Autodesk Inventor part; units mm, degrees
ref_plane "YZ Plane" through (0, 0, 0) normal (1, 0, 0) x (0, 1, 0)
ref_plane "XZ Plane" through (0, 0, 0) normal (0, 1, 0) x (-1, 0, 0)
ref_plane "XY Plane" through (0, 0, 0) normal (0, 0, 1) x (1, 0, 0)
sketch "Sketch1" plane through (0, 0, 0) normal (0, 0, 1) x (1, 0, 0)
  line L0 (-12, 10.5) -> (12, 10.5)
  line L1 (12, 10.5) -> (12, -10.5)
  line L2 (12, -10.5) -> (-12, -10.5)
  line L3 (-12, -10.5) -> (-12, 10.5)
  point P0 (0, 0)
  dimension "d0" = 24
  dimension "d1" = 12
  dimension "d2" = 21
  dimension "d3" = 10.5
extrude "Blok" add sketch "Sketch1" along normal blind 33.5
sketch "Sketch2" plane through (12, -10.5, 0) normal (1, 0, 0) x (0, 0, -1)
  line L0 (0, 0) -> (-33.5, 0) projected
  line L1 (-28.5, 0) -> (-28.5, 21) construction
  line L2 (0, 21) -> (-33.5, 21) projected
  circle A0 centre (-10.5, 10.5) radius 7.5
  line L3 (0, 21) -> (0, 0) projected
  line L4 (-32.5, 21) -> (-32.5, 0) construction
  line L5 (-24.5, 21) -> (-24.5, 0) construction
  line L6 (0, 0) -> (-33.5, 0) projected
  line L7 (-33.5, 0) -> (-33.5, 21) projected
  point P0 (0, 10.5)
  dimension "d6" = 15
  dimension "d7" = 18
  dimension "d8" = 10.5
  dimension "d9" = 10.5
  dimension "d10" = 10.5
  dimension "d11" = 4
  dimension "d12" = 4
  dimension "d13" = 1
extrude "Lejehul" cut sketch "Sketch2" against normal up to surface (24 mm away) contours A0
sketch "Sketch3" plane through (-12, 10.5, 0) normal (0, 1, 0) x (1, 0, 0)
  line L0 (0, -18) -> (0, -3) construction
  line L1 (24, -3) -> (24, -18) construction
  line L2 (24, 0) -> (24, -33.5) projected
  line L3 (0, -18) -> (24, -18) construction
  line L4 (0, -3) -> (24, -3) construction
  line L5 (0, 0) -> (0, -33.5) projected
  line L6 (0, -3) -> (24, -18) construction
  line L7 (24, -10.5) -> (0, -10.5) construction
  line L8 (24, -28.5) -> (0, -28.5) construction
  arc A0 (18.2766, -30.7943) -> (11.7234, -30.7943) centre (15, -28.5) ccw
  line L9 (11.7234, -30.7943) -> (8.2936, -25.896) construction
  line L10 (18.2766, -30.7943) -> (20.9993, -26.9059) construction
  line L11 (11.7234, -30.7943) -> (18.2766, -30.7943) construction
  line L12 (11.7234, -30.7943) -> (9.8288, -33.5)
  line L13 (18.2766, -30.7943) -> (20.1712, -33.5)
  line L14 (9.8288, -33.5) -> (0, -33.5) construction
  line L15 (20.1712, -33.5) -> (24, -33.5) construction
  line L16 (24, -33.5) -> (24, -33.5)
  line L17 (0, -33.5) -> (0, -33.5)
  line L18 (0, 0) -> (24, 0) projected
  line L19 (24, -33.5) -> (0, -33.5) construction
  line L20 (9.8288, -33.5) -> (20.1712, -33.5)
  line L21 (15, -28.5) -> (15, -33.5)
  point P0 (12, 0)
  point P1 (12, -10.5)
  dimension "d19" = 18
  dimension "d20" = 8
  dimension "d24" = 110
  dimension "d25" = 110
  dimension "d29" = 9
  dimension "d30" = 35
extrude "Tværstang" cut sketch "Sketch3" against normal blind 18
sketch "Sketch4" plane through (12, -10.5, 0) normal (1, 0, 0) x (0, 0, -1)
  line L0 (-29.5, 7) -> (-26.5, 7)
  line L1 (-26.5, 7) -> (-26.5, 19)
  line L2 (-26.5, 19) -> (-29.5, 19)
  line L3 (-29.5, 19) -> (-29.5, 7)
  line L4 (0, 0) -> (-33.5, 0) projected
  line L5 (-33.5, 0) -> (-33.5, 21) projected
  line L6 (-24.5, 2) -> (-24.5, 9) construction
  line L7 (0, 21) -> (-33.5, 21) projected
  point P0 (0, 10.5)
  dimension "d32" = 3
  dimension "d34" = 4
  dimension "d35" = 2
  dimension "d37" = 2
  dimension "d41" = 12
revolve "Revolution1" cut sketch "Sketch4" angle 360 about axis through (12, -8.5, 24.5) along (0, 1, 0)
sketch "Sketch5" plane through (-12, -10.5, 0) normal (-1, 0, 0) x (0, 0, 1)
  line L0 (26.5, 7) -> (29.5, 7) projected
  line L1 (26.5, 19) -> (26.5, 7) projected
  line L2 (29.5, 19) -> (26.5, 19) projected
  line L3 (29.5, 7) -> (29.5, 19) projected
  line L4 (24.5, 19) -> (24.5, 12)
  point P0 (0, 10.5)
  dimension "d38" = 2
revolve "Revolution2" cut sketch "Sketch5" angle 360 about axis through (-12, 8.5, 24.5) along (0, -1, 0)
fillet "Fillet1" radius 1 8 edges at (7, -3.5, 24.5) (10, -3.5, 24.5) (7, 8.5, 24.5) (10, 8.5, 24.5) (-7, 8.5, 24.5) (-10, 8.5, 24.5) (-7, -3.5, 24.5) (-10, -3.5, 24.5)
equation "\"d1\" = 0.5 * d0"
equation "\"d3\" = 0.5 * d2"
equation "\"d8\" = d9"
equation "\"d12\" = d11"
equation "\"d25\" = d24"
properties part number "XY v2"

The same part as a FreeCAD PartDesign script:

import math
import FreeCAD as App
import Part
import Sketcher
Q = App.Units.Quantity


def edges_at(feature, points):
    """Names of the edges that pass closest to the given points."""
    edges = feature.Shape.Edges
    near = lambda p: min(range(len(edges)), key=lambda i: edges[i].distToShape(Part.Vertex(*p))[0])
    return sorted({f"Edge{near(p) + 1}" for p in points})


def add_polygon(sketch, points):
    """Adds a closed chain of lines whose ends are joined by coincident constraints."""
    first, n = sketch.GeometryCount, len(points)
    for a, b in zip(points, points[1:] + points[:1]):
        sketch.addGeometry(Part.LineSegment(App.Vector(*a, 0), App.Vector(*b, 0)), False)
    for i in range(n):
        sketch.addConstraint(Sketcher.Constraint("Coincident", first + i, 2, first + (i + 1) % n, 1))

doc = App.newDocument("Part")
params = doc.addObject("Spreadsheet::Sheet", "Params")
for row, (alias, value) in enumerate([
    ("sketch1_width", "24 mm"),
    ("sketch1_height", "21 mm"),
    ("pad1_length", "33.5 mm"),
    ("sketch2_diameter", "15 mm"),
    ("pocket1_length", "24 mm"),
    ("sketch3_radius", "4 mm"),
    ("pocket2_length", "18 mm"),
    ("sketch4_width", "12 mm"),
    ("sketch4_height", "3 mm"),
    ("groove_angle", "360 deg"),
    ("sketch5_width", "12 mm"),
    ("sketch5_height", "3 mm"),
    ("groove2_angle", "360 deg"),
    ("fillet_radius", "1 mm"),
], start=1):
    params.set(f"A{row}", alias)
    params.set(f"B{row}", "=" + value)
    params.setAlias(f"B{row}", alias)

body = doc.addObject("PartDesign::Body", "Body")

# Sketch on XY plane
sketch1 = body.newObject("Sketcher::SketchObject", "Sketch")
sketch1.AttachmentSupport = (doc.getObject("XY_Plane"), [""])
sketch1.MapMode = "FlatFace"
add_polygon(sketch1, [(12, 10), (-12, 10), (-12, -10), (12, -10)])  # lines 0-3
sketch1.addConstraint([
    Sketcher.Constraint("Horizontal", 0),
    Sketcher.Constraint("Vertical", 1),
    Sketcher.Constraint("Horizontal", 2),
    Sketcher.Constraint("Vertical", 3),
    Sketcher.Constraint("Symmetric", 0, 2, 2, 2, -1, 1),
    Sketcher.Constraint("DistanceX", 0, 2, 0, 1, 24.0),
    Sketcher.Constraint("DistanceY", 1, 2, 1, 1, 21.0),
])
sketch1.setExpression("Constraints[9]", "Params.sketch1_width")
sketch1.setExpression("Constraints[10]", "Params.sketch1_height")
pad1 = body.newObject("PartDesign::Pad", "Pad")
pad1.Profile = sketch1
pad1.setExpression("Length", "Params.pad1_length")

# Sketch on YZ plane
sketch2 = body.newObject("Sketcher::SketchObject", "Sketch001")
sketch2.AttachmentSupport = (doc.getObject("YZ_Plane"), [""])
sketch2.MapMode = "FlatFace"
sketch2.AttachmentOffset = App.Placement(App.Vector(0, 0, 12), App.Rotation())
sketch2.addGeometry(Part.Circle(App.Vector(0, 10, 0), App.Vector(0, 0, 1), 8), False)
sketch2.addConstraint([
    Sketcher.Constraint("PointOnObject", 0, 3, -2),
    Sketcher.Constraint("Diameter", 0, 15.0),
    Sketcher.Constraint("DistanceY", -1, 1, 0, 3, 10.5),
])
sketch2.setExpression("Constraints[1]", "Params.sketch2_diameter")
pocket1 = body.newObject("PartDesign::Pocket", "Pocket")
pocket1.Profile = sketch2
pocket1.setExpression("Length", "Params.pocket1_length")

# Sketch on XZ plane
sketch3 = body.newObject("Sketcher::SketchObject", "Sketch002")
sketch3.AttachmentSupport = (doc.getObject("XZ_Plane"), [""])
sketch3.MapMode = "FlatFace"
sketch3.AttachmentOffset = App.Placement(App.Vector(0, 0, -10.5), App.Rotation())
sketch3.addGeometry([
    Part.LineSegment(App.Vector(8.2, 33.5, 0), App.Vector(6.3, 30.8, 0)),
    Part.ArcOfCircle(Part.Circle(App.Vector(3, 28.5, 0), App.Vector(0, 0, 1), 4), math.radians(145), math.radians(395)),
    Part.LineSegment(App.Vector(-0.3, 30.8, 0), App.Vector(-2.2, 33.5, 0)),
    Part.LineSegment(App.Vector(-2.2, 33.5, 0), App.Vector(8.2, 33.5, 0)),
], False)
sketch3.addConstraint([
    Sketcher.Constraint("Coincident", 0, 2, 1, 2),
    Sketcher.Constraint("Coincident", 1, 1, 2, 1),
    Sketcher.Constraint("Coincident", 2, 2, 3, 1),
    Sketcher.Constraint("Coincident", 3, 2, 0, 1),
    Sketcher.Constraint("Horizontal", 3),
    Sketcher.Constraint("Horizontal", 0, 2, 1, 1),
    Sketcher.Constraint("Equal", 0, 2),
    Sketcher.Constraint("Radius", 1, 4.0),
    Sketcher.Constraint("Angle", 0, Q("-125.0007 deg")),
    Sketcher.Constraint("DistanceX", -1, 1, 1, 3, 3.0),
    Sketcher.Constraint("DistanceY", 1, 3, 2, 2, 5.0),
    Sketcher.Constraint("DistanceY", -1, 1, 1, 3, 28.5),
    Sketcher.Constraint("Distance", 0, 3.303),
])
sketch3.setExpression("Constraints[7]", "Params.sketch3_radius")
pocket2 = body.newObject("PartDesign::Pocket", "Pocket001")
pocket2.Profile = sketch3
pocket2.setExpression("Length", "Params.pocket2_length")
pocket2.Reversed = True

# Sketch on YZ plane
sketch4 = body.newObject("Sketcher::SketchObject", "Sketch003")
sketch4.AttachmentSupport = (doc.getObject("YZ_Plane"), [""])
sketch4.MapMode = "FlatFace"
sketch4.AttachmentOffset = App.Placement(App.Vector(0, 0, 12), App.Rotation())
add_polygon(sketch4, [(8.5, 29.5), (-3.5, 29.5), (-3.5, 26.5), (8.5, 26.5)])  # lines 0-3
sketch4.addGeometry(Part.LineSegment(App.Vector(-3.5, 24.5, 0), App.Vector(8.5, 24.5, 0)), True)  # axis
sketch4.addConstraint([
    Sketcher.Constraint("Horizontal", 0),
    Sketcher.Constraint("Vertical", 1),
    Sketcher.Constraint("Horizontal", 2),
    Sketcher.Constraint("Vertical", 3),
    Sketcher.Constraint("Horizontal", 4),
    Sketcher.Constraint("Vertical", 1, 2, 4, 1),
    Sketcher.Constraint("Vertical", 3, 2, 4, 2),
    Sketcher.Constraint("DistanceX", 0, 2, 0, 1, 12.0),
    Sketcher.Constraint("DistanceY", 1, 2, 1, 1, 3.0),
    Sketcher.Constraint("DistanceY", 4, 1, 1, 2, 2.0),
    Sketcher.Constraint("DistanceX", 0, 2, -1, 1, 3.5),
    Sketcher.Constraint("DistanceY", -1, 1, 0, 2, 29.5),
])
sketch4.setExpression("Constraints[11]", "Params.sketch4_width")
sketch4.setExpression("Constraints[12]", "Params.sketch4_height")
groove = body.newObject("PartDesign::Groove", "Groove")
groove.Profile = sketch4
groove.ReferenceAxis = (sketch4, ["Axis0"])
groove.setExpression("Angle", "Params.groove_angle")

# Sketch on YZ plane
sketch5 = body.newObject("Sketcher::SketchObject", "Sketch004")
sketch5.AttachmentSupport = (doc.getObject("YZ_Plane"), [""])
sketch5.MapMode = "FlatFace"
sketch5.AttachmentOffset = App.Placement(App.Vector(0, 0, -12), App.Rotation())
add_polygon(sketch5, [(8.5, 26.5), (-3.5, 26.5), (-3.5, 29.5), (8.5, 29.5)])  # lines 0-3
sketch5.addGeometry(Part.LineSegment(App.Vector(8.5, 24.5, 0), App.Vector(-3.5, 24.5, 0)), True)  # axis
sketch5.addConstraint([
    Sketcher.Constraint("Horizontal", 0),
    Sketcher.Constraint("Vertical", 1),
    Sketcher.Constraint("Horizontal", 2),
    Sketcher.Constraint("Vertical", 3),
    Sketcher.Constraint("Horizontal", 4),
    Sketcher.Constraint("Vertical", 3, 2, 4, 1),
    Sketcher.Constraint("Vertical", 1, 2, 4, 2),
    Sketcher.Constraint("DistanceY", 4, 1, 3, 2, 2.0),
    Sketcher.Constraint("DistanceX", 0, 2, 0, 1, 12.0),
    Sketcher.Constraint("DistanceY", 1, 1, 1, 2, 3.0),
    Sketcher.Constraint("DistanceX", 0, 2, -1, 1, 3.5),
    Sketcher.Constraint("DistanceY", -1, 1, 0, 2, 26.5),
])
sketch5.setExpression("Constraints[12]", "Params.sketch5_width")
sketch5.setExpression("Constraints[13]", "Params.sketch5_height")
groove2 = body.newObject("PartDesign::Groove", "Groove001")
groove2.Profile = sketch5
groove2.ReferenceAxis = (sketch5, ["Axis0"])
groove2.setExpression("Angle", "Params.groove2_angle")
doc.recompute()

fillet = body.newObject("PartDesign::Fillet", "Fillet")
fillet.Base = (groove2, edges_at(groove2, [
    (7, -3.5, 24.5),
    (10, -3.5, 24.5),
    (7, 8.5, 24.5),
    (10, 8.5, 24.5),
    (-7, 8.5, 24.5),
    (-10, 8.5, 24.5),
    (-7, -3.5, 24.5),
    (-10, -3.5, 24.5),
]))
fillet.setExpression("Radius", "Params.fillet_radius")

doc.recompute()
